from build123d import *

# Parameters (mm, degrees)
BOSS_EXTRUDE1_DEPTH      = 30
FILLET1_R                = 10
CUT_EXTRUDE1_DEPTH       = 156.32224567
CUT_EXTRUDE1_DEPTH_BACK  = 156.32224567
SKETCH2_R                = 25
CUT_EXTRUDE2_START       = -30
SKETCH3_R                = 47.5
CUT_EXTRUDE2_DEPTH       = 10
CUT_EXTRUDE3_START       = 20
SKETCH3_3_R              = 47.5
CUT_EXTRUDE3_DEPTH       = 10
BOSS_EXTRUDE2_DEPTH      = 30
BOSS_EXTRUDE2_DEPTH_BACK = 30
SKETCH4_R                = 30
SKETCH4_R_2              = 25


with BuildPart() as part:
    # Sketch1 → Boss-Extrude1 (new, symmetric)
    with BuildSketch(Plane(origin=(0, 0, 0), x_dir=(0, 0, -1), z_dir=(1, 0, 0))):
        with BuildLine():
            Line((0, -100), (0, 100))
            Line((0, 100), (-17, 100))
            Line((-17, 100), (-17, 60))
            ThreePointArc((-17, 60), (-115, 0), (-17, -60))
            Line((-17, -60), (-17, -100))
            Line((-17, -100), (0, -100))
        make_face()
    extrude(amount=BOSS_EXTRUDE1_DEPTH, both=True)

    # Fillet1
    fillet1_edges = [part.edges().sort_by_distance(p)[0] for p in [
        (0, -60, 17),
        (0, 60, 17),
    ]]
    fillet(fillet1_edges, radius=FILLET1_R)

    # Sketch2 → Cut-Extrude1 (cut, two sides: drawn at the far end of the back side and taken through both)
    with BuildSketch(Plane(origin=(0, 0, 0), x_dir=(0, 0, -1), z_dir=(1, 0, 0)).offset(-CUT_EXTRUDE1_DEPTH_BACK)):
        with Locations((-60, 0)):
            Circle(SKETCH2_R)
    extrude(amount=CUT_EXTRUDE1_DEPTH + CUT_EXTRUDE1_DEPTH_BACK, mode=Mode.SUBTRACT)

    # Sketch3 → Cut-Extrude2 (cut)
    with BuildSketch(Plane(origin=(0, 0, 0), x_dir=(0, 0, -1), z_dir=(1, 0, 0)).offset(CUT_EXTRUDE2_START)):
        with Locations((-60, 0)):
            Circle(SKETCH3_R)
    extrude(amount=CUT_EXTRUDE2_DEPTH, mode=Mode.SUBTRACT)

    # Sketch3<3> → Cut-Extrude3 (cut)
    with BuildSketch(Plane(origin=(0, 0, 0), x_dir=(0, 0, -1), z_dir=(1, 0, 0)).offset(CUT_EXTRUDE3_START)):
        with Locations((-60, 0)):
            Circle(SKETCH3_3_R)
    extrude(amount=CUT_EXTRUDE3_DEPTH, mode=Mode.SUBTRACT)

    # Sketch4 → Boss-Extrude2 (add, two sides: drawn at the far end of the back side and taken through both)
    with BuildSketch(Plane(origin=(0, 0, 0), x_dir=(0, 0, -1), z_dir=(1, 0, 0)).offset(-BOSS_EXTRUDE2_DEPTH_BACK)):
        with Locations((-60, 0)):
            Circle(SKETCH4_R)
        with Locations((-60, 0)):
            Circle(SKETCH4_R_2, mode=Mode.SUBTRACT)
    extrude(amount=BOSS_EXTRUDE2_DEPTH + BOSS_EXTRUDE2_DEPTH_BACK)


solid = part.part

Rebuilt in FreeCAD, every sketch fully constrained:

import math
import FreeCAD as App
import Part
import Sketcher

V = App.Vector


def edges_at(feature, points):
    """Names of the edges that pass closest to the given points."""
    edges = feature.Shape.Edges
    near = lambda p: min(range(len(edges)), key=lambda i: edges[i].distToShape(Part.Vertex(*p))[0])
    return sorted({f"Edge{near(p) + 1}" for p in points})

doc = App.newDocument("Part")
body = doc.addObject("PartDesign::Body", "Body")

# Sketch on YZ plane
sketch1 = body.newObject("Sketcher::SketchObject", "Sketch")
sketch1.AttachmentSupport = (doc.getObject("YZ_Plane"), [""])
sketch1.MapMode = "FlatFace"
sketch1.addGeometry([
    Part.LineSegment(V(-100, 0, 0), V(100, 0, 0)),  # 0
    Part.LineSegment(V(100, 0, 0), V(100, 17, 0)),  # 1
    Part.LineSegment(V(100, 17, 0), V(60, 17, 0)),  # 2
    Part.ArcOfCircle(Part.Circle(V(0, 47.632653, 0), V(0, 0, 1), 67.367347), math.radians(-27.046321), math.radians(207.046321)),  # 3
    Part.LineSegment(V(-60, 17, 0), V(-100, 17, 0)),  # 4
    Part.LineSegment(V(-100, 17, 0), V(-100, 0, 0)),  # 5
], False)
sketch1.addConstraint([
    Sketcher.Constraint("Coincident", 0, 2, 1, 1),
    Sketcher.Constraint("Coincident", 1, 2, 2, 1),
    Sketcher.Constraint("Coincident", 2, 2, 3, 1),
    Sketcher.Constraint("Coincident", 3, 2, 4, 1),
    Sketcher.Constraint("Coincident", 4, 2, 5, 1),
    Sketcher.Constraint("Coincident", 5, 2, 0, 1),
    Sketcher.Constraint("Horizontal", 0),
    Sketcher.Constraint("Vertical", 1),
    Sketcher.Constraint("Horizontal", 2),
    Sketcher.Constraint("Horizontal", 4),
    Sketcher.Constraint("Vertical", 5),
    Sketcher.Constraint("Symmetric", 0, 2, 5, 2, -1, 1),
    Sketcher.Constraint("Symmetric", 2, 2, 3, 2, -2),
    Sketcher.Constraint("DistanceX", 0, 1, 0, 2, 200.0),
    Sketcher.Constraint("DistanceX", 2, 2, 2, 1, 40.0),
    Sketcher.Constraint("DistanceY", 1, 1, 1, 2, 17.0),
    Sketcher.Constraint("Radius", 3, 67.367347),
])
pad1 = body.newObject("PartDesign::Pad", "Pad")
pad1.Profile = sketch1
pad1.Length = 60
pad1.Midplane = True
doc.recompute()

fillet = body.newObject("PartDesign::Fillet", "Fillet")
fillet.Base = (pad1, edges_at(pad1, [(0, -60, 17), (0, 60, 17)]))
fillet.Radius = 10

# Sketch on YZ plane
sketch2 = body.newObject("Sketcher::SketchObject", "Sketch001")
sketch2.AttachmentSupport = (doc.getObject("YZ_Plane"), [""])
sketch2.MapMode = "FlatFace"
sketch2.addGeometry(Part.Circle(V(0, 60, 0), V(0, 0, 1), 25), False)
sketch2.addConstraint([
    Sketcher.Constraint("PointOnObject", 0, 3, -2),
    Sketcher.Constraint("Diameter", 0, 50.0),
    Sketcher.Constraint("DistanceY", -1, 1, 0, 3, 60.0),
])
pocket1 = body.newObject("PartDesign::Pocket", "Pocket")
pocket1.Profile = sketch2
pocket1.Type = "ThroughAll"
pocket1.Midplane = True

# Sketch on YZ plane
sketch3 = body.newObject("Sketcher::SketchObject", "Sketch002")
sketch3.AttachmentSupport = (doc.getObject("YZ_Plane"), [""])
sketch3.MapMode = "FlatFace"
sketch3.AttachmentOffset = App.Placement(V(0, 0, -30), App.Rotation())
sketch3.addGeometry(Part.Circle(V(0, 60, 0), V(0, 0, 1), 47.5), False)
sketch3.addConstraint([
    Sketcher.Constraint("PointOnObject", 0, 3, -2),
    Sketcher.Constraint("Diameter", 0, 95.0),
    Sketcher.Constraint("DistanceY", -1, 1, 0, 3, 60.0),
])
pocket2 = body.newObject("PartDesign::Pocket", "Pocket001")
pocket2.Profile = sketch3
pocket2.Length = 10
pocket2.Reversed = True

# Sketch on YZ plane
sketch4 = body.newObject("Sketcher::SketchObject", "Sketch003")
sketch4.AttachmentSupport = (doc.getObject("YZ_Plane"), [""])
sketch4.MapMode = "FlatFace"
sketch4.AttachmentOffset = App.Placement(V(0, 0, 20), App.Rotation())
sketch4.addGeometry(Part.Circle(V(0, 60, 0), V(0, 0, 1), 47.5), False)
sketch4.addConstraint([
    Sketcher.Constraint("PointOnObject", 0, 3, -2),
    Sketcher.Constraint("Diameter", 0, 95.0),
    Sketcher.Constraint("DistanceY", -1, 1, 0, 3, 60.0),
])
pocket3 = body.newObject("PartDesign::Pocket", "Pocket002")
pocket3.Profile = sketch4
pocket3.Length = 10
pocket3.Reversed = True

# Sketch on YZ plane
sketch5 = body.newObject("Sketcher::SketchObject", "Sketch004")
sketch5.AttachmentSupport = (doc.getObject("YZ_Plane"), [""])
sketch5.MapMode = "FlatFace"
sketch5.addGeometry([
    Part.Circle(V(0, 60, 0), V(0, 0, 1), 30),
    Part.Circle(V(0, 60, 0), V(0, 0, 1), 25),
], False)
sketch5.addConstraint([
    Sketcher.Constraint("Coincident", 1, 3, 0, 3),
    Sketcher.Constraint("PointOnObject", 0, 3, -2),
    Sketcher.Constraint("Diameter", 0, 60.0),
    Sketcher.Constraint("Diameter", 1, 50.0),
    Sketcher.Constraint("DistanceY", -1, 1, 0, 3, 60.0),
])
pad2 = body.newObject("PartDesign::Pad", "Pad001")
pad2.Profile = sketch5
pad2.Type = "TwoLengths"
pad2.Length = 30
pad2.Length2 = 30

doc.recompute()
